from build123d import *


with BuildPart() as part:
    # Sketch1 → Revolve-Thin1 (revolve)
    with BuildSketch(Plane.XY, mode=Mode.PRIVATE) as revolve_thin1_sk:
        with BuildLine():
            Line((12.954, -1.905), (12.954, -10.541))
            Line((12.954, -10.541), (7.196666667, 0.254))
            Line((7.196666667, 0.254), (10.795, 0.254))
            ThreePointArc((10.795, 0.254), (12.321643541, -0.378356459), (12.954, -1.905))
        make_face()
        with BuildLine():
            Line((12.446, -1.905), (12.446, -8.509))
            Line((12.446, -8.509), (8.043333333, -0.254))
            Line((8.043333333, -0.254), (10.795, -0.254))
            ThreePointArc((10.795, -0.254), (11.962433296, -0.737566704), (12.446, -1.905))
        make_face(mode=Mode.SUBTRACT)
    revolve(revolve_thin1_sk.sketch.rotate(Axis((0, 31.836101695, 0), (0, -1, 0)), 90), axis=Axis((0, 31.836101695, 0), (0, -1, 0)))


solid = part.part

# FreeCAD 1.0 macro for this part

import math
import FreeCAD as App
import Part
import Sketcher
from FreeCAD import Vector
Q = App.Units.Quantity

doc = App.newDocument("Part")
params = doc.addObject("Spreadsheet::Sheet", "Params")
for row, (alias, value) in enumerate([
    ("sketch1_radius", "0.085 in"),
    ("sketch1_radius2", "0.065 in"),
    ("sketch1_height", "0.34 in"),
    ("sketch1_height2", "0.26 in"),
    ("revolution_angle", "360 deg"),
], start=1):
    params.set(f"A{row}", alias)
    params.set(f"B{row}", "=" + value)
    params.setAlias(f"B{row}", alias)

body = doc.addObject("PartDesign::Body", "Body")

sketch1 = body.newObject("Sketcher::SketchObject", "Sketch")
sketch1.AttachmentSupport = (doc.getObject("XY_Plane"), [""])
sketch1.MapMode = "FlatFace"
sketch1.addGeometry([
    Part.LineSegment(Vector(12.954, -10.541, 0), Vector(12.954, -1.905, 0)),
    Part.ArcOfCircle(Part.Circle(Vector(10.795, -1.905, 0), Vector(0, 0, 1), 2.159), math.radians(0), math.radians(90)),
    Part.LineSegment(Vector(10.795, 0.254, 0), Vector(7.196667, 0.254, 0)),
    Part.LineSegment(Vector(7.196667, 0.254, 0), Vector(12.954, -10.541, 0)),
    Part.LineSegment(Vector(12.446, -1.905, 0), Vector(12.446, -8.509, 0)),
    Part.LineSegment(Vector(12.446, -8.509, 0), Vector(8.043333, -0.254, 0)),
    Part.LineSegment(Vector(8.043333, -0.254, 0), Vector(10.795, -0.254, 0)),
    Part.ArcOfCircle(Part.Circle(Vector(10.795, -1.905, 0), Vector(0, 0, 1), 1.651), math.radians(0), math.radians(90)),
], False)
sketch1.addConstraint([
    Sketcher.Constraint("Tangent", 0, 2, 1, 1),
    Sketcher.Constraint("Tangent", 1, 2, 2, 1),
    Sketcher.Constraint("Coincident", 2, 2, 3, 1),
    Sketcher.Constraint("Coincident", 3, 2, 0, 1),
    Sketcher.Constraint("Coincident", 4, 2, 5, 1),
    Sketcher.Constraint("Coincident", 5, 2, 6, 1),
    Sketcher.Constraint("Tangent", 6, 2, 7, 2),
    Sketcher.Constraint("Tangent", 7, 1, 4, 1),
    Sketcher.Constraint("Vertical", 0),
    Sketcher.Constraint("Horizontal", 2),
    Sketcher.Constraint("Vertical", 4),
    Sketcher.Constraint("Horizontal", 6),
    Sketcher.Constraint("Coincident", 7, 3, 1, 3),
    Sketcher.Constraint("Parallel", 3, 5),
    Sketcher.Constraint("Radius", 1, Q("0.085 in")),
    Sketcher.Constraint("Radius", 7, Q("0.065 in")),
    Sketcher.Constraint("DistanceY", 0, 1, 0, 2, Q("0.34 in")),
    Sketcher.Constraint("DistanceY", 4, 2, 4, 1, Q("0.26 in")),
    Sketcher.Constraint("DistanceX", -1, 1, 0, 2, Q("0.51 in")),
    Sketcher.Constraint("DistanceY", -1, 1, 1, 2, Q("0.01 in")),
    Sketcher.Constraint("DistanceX", 2, 2, 2, 1, Q("3.598333 mm")),
])
sketch1.setExpression("Constraints[14]", "Params.sketch1_radius")
sketch1.setExpression("Constraints[15]", "Params.sketch1_radius2")
sketch1.setExpression("Constraints[16]", "Params.sketch1_height")
sketch1.setExpression("Constraints[17]", "Params.sketch1_height2")
revolution = body.newObject("PartDesign::Revolution", "Revolution")
revolution.Profile = sketch1
revolution.ReferenceAxis = (sketch1, ["V_Axis"])
revolution.setExpression("Angle", "Params.revolution_angle")

doc.recompute()
